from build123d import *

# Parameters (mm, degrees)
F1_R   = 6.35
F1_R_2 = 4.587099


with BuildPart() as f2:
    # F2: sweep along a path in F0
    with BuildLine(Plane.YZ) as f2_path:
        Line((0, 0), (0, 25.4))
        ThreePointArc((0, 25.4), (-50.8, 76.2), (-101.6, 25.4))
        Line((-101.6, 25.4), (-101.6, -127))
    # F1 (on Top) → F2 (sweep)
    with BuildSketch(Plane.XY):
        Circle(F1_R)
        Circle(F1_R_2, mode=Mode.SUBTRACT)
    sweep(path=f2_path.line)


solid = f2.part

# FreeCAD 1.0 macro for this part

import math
import FreeCAD as App
import Part
import Sketcher
from FreeCAD import Vector
Q = App.Units.Quantity

doc = App.newDocument("Part")
body = doc.addObject("PartDesign::Body", "Body")

sketch1 = body.newObject("Sketcher::SketchObject", "Sketch")
sketch1.AttachmentSupport = (doc.getObject("XY_Plane"), [""])
sketch1.MapMode = "FlatFace"
sketch1.addGeometry([
    Part.Circle(Vector(0, 0, 0), Vector(0, 0, 1), 6.35),
    Part.Circle(Vector(0, 0, 0), Vector(0, 0, 1), 4.587099),
], False)
sketch1.addConstraint([
    Sketcher.Constraint("Coincident", 0, 3, -1, 1),
    Sketcher.Constraint("Coincident", 1, 3, -1, 1),
    Sketcher.Constraint("Diameter", 0, Q("0.5 in")),
    Sketcher.Constraint("Diameter", 1, Q("9.174198 mm")),
])

sketch2 = body.newObject("Sketcher::SketchObject", "Sketch001")
sketch2.AttachmentSupport = (doc.getObject("YZ_Plane"), [""])
sketch2.MapMode = "FlatFace"
sketch2.addGeometry([
    Part.LineSegment(Vector(0, 0, 0), Vector(0, 25.4, 0)),
    Part.ArcOfCircle(Part.Circle(Vector(-50.8, 25.4, 0), Vector(0, 0, 1), 50.8), math.radians(0), math.radians(180)),
    Part.LineSegment(Vector(-101.6, 25.4, 0), Vector(-101.6, -127, 0)),
], False)
sketch2.addConstraint([
    Sketcher.Constraint("Tangent", 0, 2, 1, 1),
    Sketcher.Constraint("Tangent", 1, 2, 2, 1),
    Sketcher.Constraint("Vertical", 0),
    Sketcher.Constraint("Vertical", 2),
    Sketcher.Constraint("Coincident", 0, 1, -1, 1),
    Sketcher.Constraint("Radius", 1, Q("2 in")),
    Sketcher.Constraint("DistanceY", 0, 1, 0, 2, Q("1 in")),
    Sketcher.Constraint("DistanceY", 2, 2, 2, 1, Q("6 in")),
])
doc.recompute()

additivepipe = body.newObject("PartDesign::AdditivePipe", "AdditivePipe")
additivepipe.Profile = sketch1
additivepipe.Spine = (sketch2, ["Edge1", "Edge2", "Edge3"])

doc.recompute()
